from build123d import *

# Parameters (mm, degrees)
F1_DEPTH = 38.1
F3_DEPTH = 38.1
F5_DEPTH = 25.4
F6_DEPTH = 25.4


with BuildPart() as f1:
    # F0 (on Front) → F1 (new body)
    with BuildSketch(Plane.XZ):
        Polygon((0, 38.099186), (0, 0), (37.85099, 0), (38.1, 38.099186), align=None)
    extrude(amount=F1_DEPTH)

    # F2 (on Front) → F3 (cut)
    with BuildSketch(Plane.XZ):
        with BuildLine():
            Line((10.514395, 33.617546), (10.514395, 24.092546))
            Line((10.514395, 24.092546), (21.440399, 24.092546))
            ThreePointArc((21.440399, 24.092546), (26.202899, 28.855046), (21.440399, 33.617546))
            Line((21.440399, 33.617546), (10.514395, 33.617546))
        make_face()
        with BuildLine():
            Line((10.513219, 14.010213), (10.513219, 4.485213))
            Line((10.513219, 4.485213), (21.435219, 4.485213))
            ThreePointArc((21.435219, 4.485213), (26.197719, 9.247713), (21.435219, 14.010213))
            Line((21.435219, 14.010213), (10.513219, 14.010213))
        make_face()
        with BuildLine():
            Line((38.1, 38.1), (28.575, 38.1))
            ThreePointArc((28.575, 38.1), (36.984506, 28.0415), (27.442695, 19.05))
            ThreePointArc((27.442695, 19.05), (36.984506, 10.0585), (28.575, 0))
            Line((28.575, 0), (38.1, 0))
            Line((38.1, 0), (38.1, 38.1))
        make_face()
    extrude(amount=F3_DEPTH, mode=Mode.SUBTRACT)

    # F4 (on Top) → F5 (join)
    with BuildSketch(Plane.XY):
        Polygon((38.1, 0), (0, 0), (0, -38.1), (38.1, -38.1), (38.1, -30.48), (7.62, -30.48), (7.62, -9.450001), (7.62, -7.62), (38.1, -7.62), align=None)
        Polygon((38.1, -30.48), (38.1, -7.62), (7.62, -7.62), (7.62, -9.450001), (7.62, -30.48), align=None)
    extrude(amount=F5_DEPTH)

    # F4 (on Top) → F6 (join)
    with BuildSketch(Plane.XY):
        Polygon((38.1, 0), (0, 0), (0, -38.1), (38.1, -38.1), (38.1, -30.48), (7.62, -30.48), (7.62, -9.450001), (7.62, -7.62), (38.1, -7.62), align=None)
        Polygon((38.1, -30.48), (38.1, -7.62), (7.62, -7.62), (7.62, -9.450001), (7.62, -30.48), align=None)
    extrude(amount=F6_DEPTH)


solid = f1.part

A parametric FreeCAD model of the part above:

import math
import FreeCAD as App
import Part
import Sketcher
from FreeCAD import Vector
Q = App.Units.Quantity

doc = App.newDocument("Part")
body = doc.addObject("PartDesign::Body", "Body")

# Sketch on XZ plane
sketch1 = body.newObject("Sketcher::SketchObject", "Sketch")
sketch1.AttachmentSupport = (doc.getObject("XZ_Plane"), [""])
sketch1.MapMode = "FlatFace"
sketch1.addGeometry(Part.LineSegment(Vector(0, 38, 0), Vector(0, 0, 0)), False)
sketch1.addGeometry(Part.LineSegment(Vector(0, 0, 0), Vector(38, 0, 0)), False)
sketch1.addGeometry(Part.LineSegment(Vector(38, 0, 0), Vector(38, 38, 0)), False)
sketch1.addGeometry(Part.LineSegment(Vector(38, 38, 0), Vector(0, 38, 0)), False)
sketch1.addConstraint(Sketcher.Constraint("Coincident", 0, 2, 1, 1))
sketch1.addConstraint(Sketcher.Constraint("Coincident", 1, 2, 2, 1))
sketch1.addConstraint(Sketcher.Constraint("Coincident", 2, 2, 3, 1))
sketch1.addConstraint(Sketcher.Constraint("Coincident", 3, 2, 0, 1))
sketch1.addConstraint(Sketcher.Constraint("Vertical", 0))
sketch1.addConstraint(Sketcher.Constraint("Horizontal", 1))
sketch1.addConstraint(Sketcher.Constraint("Horizontal", 3))
sketch1.addConstraint(Sketcher.Constraint("Coincident", 0, 2, -1, 1))
sketch1.addConstraint(Sketcher.Constraint("DistanceX", 3, 2, 3, 1, Q("1.5 in")))
sketch1.addConstraint(Sketcher.Constraint("Distance", 2, Q("1.5 in")))
sketch1.addConstraint(Sketcher.Constraint("DistanceX", 1, 1, 1, 2, 37.85099))
pad1 = body.newObject("PartDesign::Pad", "Pad")
pad1.Profile = sketch1
pad1.Length = Q("1.5 in")

# Sketch on XZ plane
sketch2 = body.newObject("Sketcher::SketchObject", "Sketch001")
sketch2.AttachmentSupport = (doc.getObject("XZ_Plane"), [""])
sketch2.MapMode = "FlatFace"
sketch2.addGeometry(Part.LineSegment(Vector(10.5, 33.6, 0), Vector(10.5, 24.1, 0)), False)
sketch2.addGeometry(Part.LineSegment(Vector(10.5, 24.1, 0), Vector(21.4, 24.1, 0)), False)
sketch2.addGeometry(Part.ArcOfCircle(Part.Circle(Vector(21.4, 28.9, 0), Vector(0, 0, 1), 4.8), math.radians(-90), math.radians(90)), False)
sketch2.addGeometry(Part.LineSegment(Vector(21.4, 33.6, 0), Vector(10.5, 33.6, 0)), False)
sketch2.addGeometry(Part.LineSegment(Vector(10.5, 14, 0), Vector(10.5, 4.5, 0)), False)
sketch2.addGeometry(Part.LineSegment(Vector(10.5, 4.5, 0), Vector(21.4, 4.5, 0)), False)
sketch2.addGeometry(Part.ArcOfCircle(Part.Circle(Vector(21.4, 9.2, 0), Vector(0, 0, 1), 4.8), math.radians(-90), math.radians(90)), False)
sketch2.addGeometry(Part.LineSegment(Vector(21.4, 14, 0), Vector(10.5, 14, 0)), False)
sketch2.addGeometry(Part.LineSegment(Vector(38.1, 38.1, 0), Vector(28.6, 38.1, 0)), False)
sketch2.addGeometry(Part.ArcOfCircle(Part.Circle(Vector(27.4, 28.6, 0), Vector(0, 0, 1), 9.6), math.radians(-90), math.radians(83)), False)
sketch2.addGeometry(Part.ArcOfCircle(Part.Circle(Vector(27.4, 9.5, 0), Vector(0, 0, 1), 9.6), math.radians(-83), math.radians(90)), False)
sketch2.addGeometry(Part.LineSegment(Vector(28.6, 0, 0), Vector(38.1, 0, 0)), False)
sketch2.addGeometry(Part.LineSegment(Vector(38.1, 0, 0), Vector(38.1, 38.1, 0)), False)
sketch2.addConstraint(Sketcher.Constraint("Coincident", 0, 2, 1, 1))
sketch2.addConstraint(Sketcher.Constraint("Tangent", 1, 2, 2, 1))
sketch2.addConstraint(Sketcher.Constraint("Tangent", 2, 2, 3, 1))
sketch2.addConstraint(Sketcher.Constraint("Coincident", 3, 2, 0, 1))
sketch2.addConstraint(Sketcher.Constraint("Coincident", 4, 2, 5, 1))
sketch2.addConstraint(Sketcher.Constraint("Tangent", 5, 2, 6, 1))
sketch2.addConstraint(Sketcher.Constraint("Tangent", 6, 2, 7, 1))
sketch2.addConstraint(Sketcher.Constraint("Coincident", 7, 2, 4, 1))
sketch2.addConstraint(Sketcher.Constraint("Coincident", 8, 2, 9, 2))
sketch2.addConstraint(Sketcher.Constraint("Tangent", 9, 1, 10, 2))
sketch2.addConstraint(Sketcher.Constraint("Coincident", 10, 1, 11, 1))
sketch2.addConstraint(Sketcher.Constraint("Coincident", 11, 2, 12, 1))
sketch2.addConstraint(Sketcher.Constraint("Coincident", 12, 2, 8, 1))
sketch2.addConstraint(Sketcher.Constraint("Vertical", 0))
sketch2.addConstraint(Sketcher.Constraint("Horizontal", 1))
sketch2.addConstraint(Sketcher.Constraint("Horizontal", 3))
sketch2.addConstraint(Sketcher.Constraint("Vertical", 4))
sketch2.addConstraint(Sketcher.Constraint("Horizontal", 5))
sketch2.addConstraint(Sketcher.Constraint("Horizontal", 7))
sketch2.addConstraint(Sketcher.Constraint("Horizontal", 8))
sketch2.addConstraint(Sketcher.Constraint("Horizontal", 11))
sketch2.addConstraint(Sketcher.Constraint("Vertical", 12))
sketch2.addConstraint(Sketcher.Constraint("Equal", 2, 6))
sketch2.addConstraint(Sketcher.Constraint("Equal", 9, 10))
sketch2.addConstraint(Sketcher.Constraint("PointOnObject", 10, 1, -1))
sketch2.addConstraint(Sketcher.Constraint("Vertical", 9, 3, 10, 3))
sketch2.addConstraint(Sketcher.Constraint("Vertical", 8, 2, 10, 1))
sketch2.addConstraint(Sketcher.Constraint("Equal", 11, 0))
sketch2.addConstraint(Sketcher.Constraint("DistanceY", 12, 1, 12, 2, Q("1.5 in")))
sketch2.addConstraint(Sketcher.Constraint("Radius", 2, Q("0.1875 in")))
sketch2.addConstraint(Sketcher.Constraint("DistanceX", 5, 1, 5, 2, Q("0.43 in")))
sketch2.addConstraint(Sketcher.Constraint("DistanceX", -1, 1, 11, 2, Q("1.5 in")))
sketch2.addConstraint(Sketcher.Constraint("Radius", 9, 9.558651))
sketch2.addConstraint(Sketcher.Constraint("DistanceX", -1, 1, 2, 3, 21.440399))
sketch2.addConstraint(Sketcher.Constraint("DistanceX", 0, 2, 9, 3, 16.9283))
sketch2.addConstraint(Sketcher.Constraint("DistanceX", -1, 1, 6, 3, 21.435219))
sketch2.addConstraint(Sketcher.Constraint("DistanceY", 6, 3, 9, 3, 19.360938))
sketch2.addConstraint(Sketcher.Constraint("DistanceY", -1, 1, 2, 3, 28.855046))
pocket1 = body.newObject("PartDesign::Pocket", "Pocket")
pocket1.Profile = sketch2
pocket1.Length = Q("1.5 in")
pocket1.Reversed = True

# Sketch on XY plane
sketch3 = body.newObject("Sketcher::SketchObject", "Sketch002")
sketch3.AttachmentSupport = (doc.getObject("XY_Plane"), [""])
sketch3.MapMode = "FlatFace"
sketch3.addGeometry(Part.LineSegment(Vector(38, 0, 0), Vector(0, 0, 0)), False)
sketch3.addGeometry(Part.LineSegment(Vector(0, 0, 0), Vector(0, -38, 0)), False)
sketch3.addGeometry(Part.LineSegment(Vector(0, -38, 0), Vector(38, -38, 0)), False)
sketch3.addGeometry(Part.LineSegment(Vector(38, -38, 0), Vector(38, 0, 0)), False)
sketch3.addConstraint(Sketcher.Constraint("Coincident", 0, 2, 1, 1))
sketch3.addConstraint(Sketcher.Constraint("Coincident", 1, 2, 2, 1))
sketch3.addConstraint(Sketcher.Constraint("Coincident", 2, 2, 3, 1))
sketch3.addConstraint(Sketcher.Constraint("Coincident", 3, 2, 0, 1))
sketch3.addConstraint(Sketcher.Constraint("Horizontal", 0))
sketch3.addConstraint(Sketcher.Constraint("Vertical", 1))
sketch3.addConstraint(Sketcher.Constraint("Horizontal", 2))
sketch3.addConstraint(Sketcher.Constraint("Vertical", 3))
sketch3.addConstraint(Sketcher.Constraint("Coincident", 0, 2, -1, 1))
sketch3.addConstraint(Sketcher.Constraint("Equal", 2, 1))
sketch3.addConstraint(Sketcher.Constraint("DistanceX", 0, 2, 0, 1, Q("1.5 in")))
pad2 = body.newObject("PartDesign::Pad", "Pad001")
pad2.Profile = sketch3
pad2.Length = Q("1 in")

# Sketch on XY plane
sketch4 = body.newObject("Sketcher::SketchObject", "Sketch003")
sketch4.AttachmentSupport = (doc.getObject("XY_Plane"), [""])
sketch4.MapMode = "FlatFace"
sketch4.addGeometry(Part.LineSegment(Vector(38, 0, 0), Vector(0, 0, 0)), False)
sketch4.addGeometry(Part.LineSegment(Vector(0, 0, 0), Vector(0, -38, 0)), False)
sketch4.addGeometry(Part.LineSegment(Vector(0, -38, 0), Vector(38, -38, 0)), False)
sketch4.addGeometry(Part.LineSegment(Vector(38, -38, 0), Vector(38, 0, 0)), False)
sketch4.addConstraint(Sketcher.Constraint("Coincident", 0, 2, 1, 1))
sketch4.addConstraint(Sketcher.Constraint("Coincident", 1, 2, 2, 1))
sketch4.addConstraint(Sketcher.Constraint("Coincident", 2, 2, 3, 1))
sketch4.addConstraint(Sketcher.Constraint("Coincident", 3, 2, 0, 1))
sketch4.addConstraint(Sketcher.Constraint("Horizontal", 0))
sketch4.addConstraint(Sketcher.Constraint("Vertical", 1))
sketch4.addConstraint(Sketcher.Constraint("Horizontal", 2))
sketch4.addConstraint(Sketcher.Constraint("Vertical", 3))
sketch4.addConstraint(Sketcher.Constraint("Coincident", 0, 2, -1, 1))
sketch4.addConstraint(Sketcher.Constraint("Equal", 2, 1))
sketch4.addConstraint(Sketcher.Constraint("DistanceX", 0, 2, 0, 1, Q("1.5 in")))
pad3 = body.newObject("PartDesign::Pad", "Pad002")
pad3.Profile = sketch4
pad3.Length = Q("1 in")

doc.recompute()
